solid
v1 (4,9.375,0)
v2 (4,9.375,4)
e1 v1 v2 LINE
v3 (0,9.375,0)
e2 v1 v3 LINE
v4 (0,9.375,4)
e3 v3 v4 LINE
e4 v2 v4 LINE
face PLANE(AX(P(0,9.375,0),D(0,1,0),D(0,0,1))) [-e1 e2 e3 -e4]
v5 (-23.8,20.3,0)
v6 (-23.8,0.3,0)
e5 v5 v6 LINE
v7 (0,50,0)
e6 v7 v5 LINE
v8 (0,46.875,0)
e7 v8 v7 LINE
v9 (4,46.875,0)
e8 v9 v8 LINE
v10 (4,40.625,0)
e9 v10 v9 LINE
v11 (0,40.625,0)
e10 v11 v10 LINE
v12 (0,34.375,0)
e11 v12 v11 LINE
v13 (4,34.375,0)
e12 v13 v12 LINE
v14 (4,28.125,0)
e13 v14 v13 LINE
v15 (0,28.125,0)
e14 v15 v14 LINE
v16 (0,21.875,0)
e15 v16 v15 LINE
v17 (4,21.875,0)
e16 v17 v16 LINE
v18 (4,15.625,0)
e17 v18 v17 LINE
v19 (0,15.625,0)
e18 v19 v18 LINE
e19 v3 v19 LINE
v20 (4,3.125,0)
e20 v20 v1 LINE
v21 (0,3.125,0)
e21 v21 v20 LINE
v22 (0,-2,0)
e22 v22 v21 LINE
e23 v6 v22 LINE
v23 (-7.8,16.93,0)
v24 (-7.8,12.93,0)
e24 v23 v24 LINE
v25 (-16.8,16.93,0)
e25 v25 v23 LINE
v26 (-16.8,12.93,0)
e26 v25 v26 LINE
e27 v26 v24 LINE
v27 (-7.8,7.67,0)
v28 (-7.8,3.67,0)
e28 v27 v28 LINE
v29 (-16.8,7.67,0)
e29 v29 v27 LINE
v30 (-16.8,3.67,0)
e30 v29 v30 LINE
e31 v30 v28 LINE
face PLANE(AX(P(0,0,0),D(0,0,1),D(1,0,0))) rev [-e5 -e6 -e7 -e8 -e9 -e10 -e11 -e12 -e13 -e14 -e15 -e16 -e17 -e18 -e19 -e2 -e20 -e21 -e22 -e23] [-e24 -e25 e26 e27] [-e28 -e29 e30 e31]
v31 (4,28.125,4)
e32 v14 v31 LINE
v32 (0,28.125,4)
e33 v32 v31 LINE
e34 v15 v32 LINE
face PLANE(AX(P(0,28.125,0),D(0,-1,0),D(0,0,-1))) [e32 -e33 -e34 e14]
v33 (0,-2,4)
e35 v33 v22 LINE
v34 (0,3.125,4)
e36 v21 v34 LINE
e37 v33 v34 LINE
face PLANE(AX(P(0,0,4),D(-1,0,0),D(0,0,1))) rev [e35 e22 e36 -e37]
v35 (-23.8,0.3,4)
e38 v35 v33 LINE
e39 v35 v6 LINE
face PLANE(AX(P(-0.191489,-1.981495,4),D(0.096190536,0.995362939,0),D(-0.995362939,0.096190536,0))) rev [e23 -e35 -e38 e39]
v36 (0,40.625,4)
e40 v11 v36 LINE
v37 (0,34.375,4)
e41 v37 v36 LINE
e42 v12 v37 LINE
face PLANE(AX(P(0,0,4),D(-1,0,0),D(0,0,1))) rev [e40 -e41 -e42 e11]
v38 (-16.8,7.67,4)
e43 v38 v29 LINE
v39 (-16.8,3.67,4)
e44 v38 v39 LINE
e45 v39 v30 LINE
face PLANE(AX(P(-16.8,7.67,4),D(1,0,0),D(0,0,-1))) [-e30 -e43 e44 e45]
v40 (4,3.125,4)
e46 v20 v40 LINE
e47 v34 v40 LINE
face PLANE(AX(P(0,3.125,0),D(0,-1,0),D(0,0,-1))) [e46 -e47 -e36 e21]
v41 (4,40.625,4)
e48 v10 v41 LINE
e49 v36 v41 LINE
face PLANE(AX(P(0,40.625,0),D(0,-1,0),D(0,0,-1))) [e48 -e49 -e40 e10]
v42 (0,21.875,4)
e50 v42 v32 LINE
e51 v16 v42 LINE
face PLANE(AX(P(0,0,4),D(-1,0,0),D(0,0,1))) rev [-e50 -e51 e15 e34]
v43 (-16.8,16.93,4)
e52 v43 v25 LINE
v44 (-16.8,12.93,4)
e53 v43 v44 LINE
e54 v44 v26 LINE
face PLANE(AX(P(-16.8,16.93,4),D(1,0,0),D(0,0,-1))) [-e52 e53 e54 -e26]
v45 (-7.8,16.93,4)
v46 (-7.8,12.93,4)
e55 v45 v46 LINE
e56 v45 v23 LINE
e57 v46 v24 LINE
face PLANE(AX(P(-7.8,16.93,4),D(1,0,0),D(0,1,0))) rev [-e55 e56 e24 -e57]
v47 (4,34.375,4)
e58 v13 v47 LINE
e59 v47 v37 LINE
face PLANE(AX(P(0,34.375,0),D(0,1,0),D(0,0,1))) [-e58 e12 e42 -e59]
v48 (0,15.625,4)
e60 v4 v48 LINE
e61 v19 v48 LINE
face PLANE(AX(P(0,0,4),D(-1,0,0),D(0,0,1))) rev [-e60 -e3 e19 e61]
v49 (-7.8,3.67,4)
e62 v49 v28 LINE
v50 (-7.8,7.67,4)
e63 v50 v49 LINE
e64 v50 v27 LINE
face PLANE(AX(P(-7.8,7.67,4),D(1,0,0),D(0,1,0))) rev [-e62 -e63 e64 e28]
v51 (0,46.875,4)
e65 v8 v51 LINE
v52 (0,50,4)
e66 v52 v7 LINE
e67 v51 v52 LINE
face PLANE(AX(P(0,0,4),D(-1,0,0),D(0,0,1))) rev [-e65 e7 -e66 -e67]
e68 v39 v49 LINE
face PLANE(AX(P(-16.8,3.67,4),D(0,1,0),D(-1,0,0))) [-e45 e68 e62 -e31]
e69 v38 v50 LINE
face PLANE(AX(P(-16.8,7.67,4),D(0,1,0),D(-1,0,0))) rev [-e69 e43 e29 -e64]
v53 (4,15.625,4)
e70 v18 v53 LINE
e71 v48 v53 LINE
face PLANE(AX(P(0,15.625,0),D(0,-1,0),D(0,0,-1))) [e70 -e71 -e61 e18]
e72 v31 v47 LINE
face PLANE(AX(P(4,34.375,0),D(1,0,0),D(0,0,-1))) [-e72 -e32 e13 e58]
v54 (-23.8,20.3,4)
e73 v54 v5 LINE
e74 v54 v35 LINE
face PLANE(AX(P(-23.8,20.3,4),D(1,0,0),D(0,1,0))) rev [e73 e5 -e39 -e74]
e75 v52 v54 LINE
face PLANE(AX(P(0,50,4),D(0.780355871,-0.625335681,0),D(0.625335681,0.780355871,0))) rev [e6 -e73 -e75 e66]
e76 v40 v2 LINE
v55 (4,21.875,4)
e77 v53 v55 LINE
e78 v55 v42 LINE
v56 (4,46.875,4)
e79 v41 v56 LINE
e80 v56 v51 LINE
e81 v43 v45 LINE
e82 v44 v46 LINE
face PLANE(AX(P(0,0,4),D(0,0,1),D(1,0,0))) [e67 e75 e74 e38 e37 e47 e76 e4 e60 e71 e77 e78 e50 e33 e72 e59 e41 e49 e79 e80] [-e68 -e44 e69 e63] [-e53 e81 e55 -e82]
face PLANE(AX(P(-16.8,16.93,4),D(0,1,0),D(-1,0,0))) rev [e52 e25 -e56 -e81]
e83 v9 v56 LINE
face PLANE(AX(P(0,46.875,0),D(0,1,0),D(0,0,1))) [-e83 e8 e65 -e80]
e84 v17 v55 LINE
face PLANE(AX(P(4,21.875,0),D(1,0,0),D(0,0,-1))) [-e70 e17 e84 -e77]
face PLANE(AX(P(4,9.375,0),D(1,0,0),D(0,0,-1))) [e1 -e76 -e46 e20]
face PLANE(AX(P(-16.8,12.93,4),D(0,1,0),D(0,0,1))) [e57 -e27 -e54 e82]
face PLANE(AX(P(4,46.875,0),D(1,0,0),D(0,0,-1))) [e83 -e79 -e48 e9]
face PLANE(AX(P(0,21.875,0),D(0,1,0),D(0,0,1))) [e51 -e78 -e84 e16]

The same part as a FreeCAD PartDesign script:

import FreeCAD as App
import Part
import Sketcher

V = App.Vector
Q = App.Units.Quantity

doc = App.newDocument("Part")
body = doc.addObject("PartDesign::Body", "Body")

# Sketch on XY plane
sketch1 = body.newObject("Sketcher::SketchObject", "Sketch")
sketch1.AttachmentSupport = (doc.getObject("XY_Plane"), [""])
sketch1.MapMode = "FlatFace"
sketch1.addGeometry([
    Part.LineSegment(V(0, 50, 0), V(-23.8, 20.3, 0)),  # 0
    Part.LineSegment(V(-23.8, 20.3, 0), V(-23.8, 0.3, 0)),  # 1
    Part.LineSegment(V(-23.8, 0.3, 0), V(0, -2, 0)),  # 2
    Part.LineSegment(V(0, -2, 0), V(0, 50, 0)),  # 3
    Part.LineSegment(V(-7.8, 3.7, 0), V(-16.8, 3.7, 0)),  # 4
    Part.LineSegment(V(-16.8, 3.7, 0), V(-16.8, 7.7, 0)),  # 5
    Part.LineSegment(V(-16.8, 7.7, 0), V(-7.8, 7.7, 0)),  # 6
    Part.LineSegment(V(-7.8, 7.7, 0), V(-7.8, 3.7, 0)),  # 7
    Part.LineSegment(V(-7.8, 12.9, 0), V(-16.8, 12.9, 0)),  # 8
    Part.LineSegment(V(-16.8, 12.9, 0), V(-16.8, 16.9, 0)),  # 9
    Part.LineSegment(V(-16.8, 16.9, 0), V(-7.8, 16.9, 0)),  # 10
    Part.LineSegment(V(-7.8, 16.9, 0), V(-7.8, 12.9, 0)),  # 11
], False)
sketch1.addConstraint([
    Sketcher.Constraint("Coincident", 0, 2, 1, 1),
    Sketcher.Constraint("Coincident", 1, 2, 2, 1),
    Sketcher.Constraint("Coincident", 2, 2, 3, 1),
    Sketcher.Constraint("Coincident", 3, 2, 0, 1),
    Sketcher.Constraint("Coincident", 4, 2, 5, 1),
    Sketcher.Constraint("Coincident", 5, 2, 6, 1),
    Sketcher.Constraint("Coincident", 6, 2, 7, 1),
    Sketcher.Constraint("Coincident", 7, 2, 4, 1),
    Sketcher.Constraint("Coincident", 8, 2, 9, 1),
    Sketcher.Constraint("Coincident", 9, 2, 10, 1),
    Sketcher.Constraint("Coincident", 10, 2, 11, 1),
    Sketcher.Constraint("Coincident", 11, 2, 8, 1),
    Sketcher.Constraint("Vertical", 1),
    Sketcher.Constraint("Vertical", 3),
    Sketcher.Constraint("Horizontal", 4),
    Sketcher.Constraint("Vertical", 5),
    Sketcher.Constraint("Horizontal", 6),
    Sketcher.Constraint("Vertical", 7),
    Sketcher.Constraint("Horizontal", 8),
    Sketcher.Constraint("Vertical", 9),
    Sketcher.Constraint("Horizontal", 10),
    Sketcher.Constraint("Vertical", 11),
    Sketcher.Constraint("PointOnObject", 2, 2, -2),
    Sketcher.Constraint("Vertical", 5, 2, 8, 2),
    Sketcher.Constraint("Vertical", 7, 2, 10, 2),
    Sketcher.Constraint("Equal", 7, 9),
    Sketcher.Constraint("DistanceX", 4, 2, 4, 1, Q("9 mm")),
    Sketcher.Constraint("DistanceY", 1, 2, 1, 1, Q("20 mm")),
    Sketcher.Constraint("DistanceY", 3, 1, 3, 2, Q("52 mm")),
    Sketcher.Constraint("DistanceY", 5, 1, 5, 2, Q("4 mm")),
    Sketcher.Constraint("DistanceY", 2, 2, -1, 1, Q("2 mm")),
    Sketcher.Constraint("DistanceX", 1, 2, 4, 2, Q("7 mm")),
    Sketcher.Constraint("DistanceX", 0, 2, -1, 1, Q("23.8 mm")),
    Sketcher.Constraint("DistanceY", -1, 1, 0, 2, Q("20.3 mm")),
    Sketcher.Constraint("DistanceY", -1, 1, 4, 2, Q("3.67 mm")),
    Sketcher.Constraint("DistanceY", -1, 1, 8, 2, Q("12.93 mm")),
])
pad1 = body.newObject("PartDesign::Pad", "Pad")
pad1.Profile = sketch1
pad1.Length = 4

# Sketch on XY plane
sketch2 = body.newObject("Sketcher::SketchObject", "Sketch001")
sketch2.AttachmentSupport = (doc.getObject("XY_Plane"), [""])
sketch2.MapMode = "FlatFace"
sketch2.AttachmentOffset = App.Placement(V(0, 0, 4), App.Rotation())
sketch2.addGeometry([
    Part.LineSegment(V(0, 46.9, 0), V(0, 40.6, 0)),
    Part.LineSegment(V(0, 40.6, 0), V(4, 40.6, 0)),
    Part.LineSegment(V(4, 40.6, 0), V(4, 46.9, 0)),
    Part.LineSegment(V(4, 46.9, 0), V(0, 46.9, 0)),
], False)
sketch2.addConstraint([
    Sketcher.Constraint("Coincident", 0, 2, 1, 1),
    Sketcher.Constraint("Coincident", 1, 2, 2, 1),
    Sketcher.Constraint("Coincident", 2, 2, 3, 1),
    Sketcher.Constraint("Coincident", 3, 2, 0, 1),
    Sketcher.Constraint("Vertical", 0),
    Sketcher.Constraint("Horizontal", 1),
    Sketcher.Constraint("Vertical", 2),
    Sketcher.Constraint("Horizontal", 3),
    Sketcher.Constraint("PointOnObject", 0, 2, -2),
    Sketcher.Constraint("DistanceX", 1, 1, 1, 2, Q("4 mm")),
    Sketcher.Constraint("DistanceY", 0, 2, 0, 1, Q("6.25 mm")),
    Sketcher.Constraint("DistanceY", -1, 1, 0, 2, Q("40.625 mm")),
])
pad2 = body.newObject("PartDesign::Pad", "Pad001")
pad2.Profile = sketch2
pad2.Length = 4
pad2.Reversed = True
doc.recompute()

linearpattern = body.newObject("PartDesign::LinearPattern", "LinearPattern")
linearpattern.Originals = [pad2]
linearpattern.Direction = (doc.getObject("Y_Axis"), [""])
linearpattern.Mode = "offset"
linearpattern.Offset = 12.5
linearpattern.Occurrences = 4
linearpattern.Reversed = True
body.Tip = linearpattern

doc.recompute()
